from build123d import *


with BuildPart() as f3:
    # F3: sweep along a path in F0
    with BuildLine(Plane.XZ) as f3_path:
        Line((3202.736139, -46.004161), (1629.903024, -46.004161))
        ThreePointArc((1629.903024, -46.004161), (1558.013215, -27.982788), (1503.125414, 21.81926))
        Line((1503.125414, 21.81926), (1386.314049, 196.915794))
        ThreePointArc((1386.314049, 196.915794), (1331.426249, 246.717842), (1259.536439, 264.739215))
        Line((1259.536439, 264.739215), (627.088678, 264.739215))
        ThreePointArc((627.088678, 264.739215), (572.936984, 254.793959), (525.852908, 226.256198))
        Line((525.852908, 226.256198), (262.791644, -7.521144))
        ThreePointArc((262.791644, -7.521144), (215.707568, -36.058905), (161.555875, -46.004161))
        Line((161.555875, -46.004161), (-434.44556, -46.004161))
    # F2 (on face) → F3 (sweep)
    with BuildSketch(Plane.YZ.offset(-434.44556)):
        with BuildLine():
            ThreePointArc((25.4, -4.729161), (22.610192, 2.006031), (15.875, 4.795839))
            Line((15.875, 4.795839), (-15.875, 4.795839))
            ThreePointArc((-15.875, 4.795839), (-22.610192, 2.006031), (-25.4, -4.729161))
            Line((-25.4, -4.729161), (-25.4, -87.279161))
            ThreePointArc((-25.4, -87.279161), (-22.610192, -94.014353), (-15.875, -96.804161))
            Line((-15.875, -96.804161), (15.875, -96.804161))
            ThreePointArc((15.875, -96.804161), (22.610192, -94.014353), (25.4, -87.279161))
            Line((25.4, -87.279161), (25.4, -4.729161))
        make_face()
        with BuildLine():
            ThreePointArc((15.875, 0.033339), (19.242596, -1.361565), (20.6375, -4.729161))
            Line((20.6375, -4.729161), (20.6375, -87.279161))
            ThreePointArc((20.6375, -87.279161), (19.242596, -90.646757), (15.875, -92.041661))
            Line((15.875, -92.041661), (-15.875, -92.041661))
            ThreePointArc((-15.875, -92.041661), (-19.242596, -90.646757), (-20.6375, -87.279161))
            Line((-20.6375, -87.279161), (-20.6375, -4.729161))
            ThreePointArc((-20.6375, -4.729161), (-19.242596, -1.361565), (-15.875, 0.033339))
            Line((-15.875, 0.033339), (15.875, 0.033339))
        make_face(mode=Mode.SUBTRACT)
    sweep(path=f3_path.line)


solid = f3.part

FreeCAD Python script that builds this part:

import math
import FreeCAD as App
import Part
import Sketcher
Q = App.Units.Quantity

doc = App.newDocument("Part")
params = doc.addObject("Spreadsheet::Sheet", "Params")
for row, (alias, value) in enumerate([
    ("sketch1_radius", "0.375 in"),
    ("sketch1_radius2", "0.1875 in"),
    ("sketch1_height", "3.25 in"),
    ("sketch2_radius", "6 in"),
    ("sketch2_radius2", "5.9999999 in"),
], start=1):
    params.set(f"A{row}", alias)
    params.set(f"B{row}", "=" + value)
    params.setAlias(f"B{row}", alias)

body = doc.addObject("PartDesign::Body", "Body")

# Sketch on YZ plane
sketch1 = doc.addObject("Sketcher::SketchObject", "Sketch")
body.addObject(sketch1)
sketch1.AttachmentSupport = (doc.YZ_Plane, [""])
sketch1.MapMode = "FlatFace"
sketch1.AttachmentOffset = App.Placement(App.Vector(0, 0, -434.44556), App.Rotation())
sketch1.addGeometry([
    Part.ArcOfCircle(Part.Circle(App.Vector(15.9, -4.7, 0), App.Vector(0, 0, 1), 9.5), math.radians(0), math.radians(90)),  # 0
    Part.LineSegment(App.Vector(15.9, 4.8, 0), App.Vector(-15.9, 4.8, 0)),  # 1
    Part.ArcOfCircle(Part.Circle(App.Vector(-15.9, -4.7, 0), App.Vector(0, 0, 1), 9.5), math.radians(90), math.radians(180)),  # 2
    Part.LineSegment(App.Vector(-25.4, -4.7, 0), App.Vector(-25.4, -87.3, 0)),  # 3
    Part.ArcOfCircle(Part.Circle(App.Vector(-15.9, -87.3, 0), App.Vector(0, 0, 1), 9.5), math.radians(-180), math.radians(-90)),  # 4
    Part.LineSegment(App.Vector(-15.9, -96.8, 0), App.Vector(15.9, -96.8, 0)),  # 5
    Part.ArcOfCircle(Part.Circle(App.Vector(15.9, -87.3, 0), App.Vector(0, 0, 1), 9.5), math.radians(-90), math.radians(0)),  # 6
    Part.LineSegment(App.Vector(25.4, -87.3, 0), App.Vector(25.4, -4.7, 0)),  # 7
    Part.LineSegment(App.Vector(-15.9, 0, 0), App.Vector(15.9, 0, 0)),  # 8
    Part.ArcOfCircle(Part.Circle(App.Vector(15.9, -4.7, 0), App.Vector(0, 0, 1), 4.8), math.radians(0), math.radians(90)),  # 9
    Part.LineSegment(App.Vector(20.6, -4.7, 0), App.Vector(20.6, -87.3, 0)),  # 10
    Part.ArcOfCircle(Part.Circle(App.Vector(15.9, -87.3, 0), App.Vector(0, 0, 1), 4.8), math.radians(-90), math.radians(0)),  # 11
    Part.LineSegment(App.Vector(15.9, -92, 0), App.Vector(-15.9, -92, 0)),  # 12
    Part.ArcOfCircle(Part.Circle(App.Vector(-15.9, -87.3, 0), App.Vector(0, 0, 1), 4.8), math.radians(-180), math.radians(-90)),  # 13
    Part.LineSegment(App.Vector(-20.6, -87.3, 0), App.Vector(-20.6, -4.7, 0)),  # 14
    Part.ArcOfCircle(Part.Circle(App.Vector(-15.9, -4.7, 0), App.Vector(0, 0, 1), 4.8), math.radians(90), math.radians(180)),  # 15
], False)
sketch1.addConstraint([
    Sketcher.Constraint("Tangent", 0, 2, 1, 1),
    Sketcher.Constraint("Tangent", 1, 2, 2, 1),
    Sketcher.Constraint("Tangent", 2, 2, 3, 1),
    Sketcher.Constraint("Tangent", 3, 2, 4, 1),
    Sketcher.Constraint("Tangent", 4, 2, 5, 1),
    Sketcher.Constraint("Tangent", 5, 2, 6, 1),
    Sketcher.Constraint("Tangent", 6, 2, 7, 1),
    Sketcher.Constraint("Tangent", 7, 2, 0, 1),
    Sketcher.Constraint("Tangent", 8, 2, 9, 2),
    Sketcher.Constraint("Tangent", 9, 1, 10, 1),
    Sketcher.Constraint("Tangent", 10, 2, 11, 2),
    Sketcher.Constraint("Tangent", 11, 1, 12, 1),
    Sketcher.Constraint("Tangent", 12, 2, 13, 2),
    Sketcher.Constraint("Tangent", 13, 1, 14, 1),
    Sketcher.Constraint("Tangent", 14, 2, 15, 2),
    Sketcher.Constraint("Tangent", 15, 1, 8, 1),
    Sketcher.Constraint("Horizontal", 1),
    Sketcher.Constraint("Vertical", 3),
    Sketcher.Constraint("Horizontal", 5),
    Sketcher.Constraint("Vertical", 7),
    Sketcher.Constraint("Horizontal", 8),
    Sketcher.Constraint("Vertical", 10),
    Sketcher.Constraint("Horizontal", 12),
    Sketcher.Constraint("Vertical", 14),
    Sketcher.Constraint("Coincident", 9, 3, 0, 3),
    Sketcher.Constraint("Coincident", 11, 3, 6, 3),
    Sketcher.Constraint("Coincident", 13, 3, 4, 3),
    Sketcher.Constraint("Equal", 0, 2),
    Sketcher.Constraint("Equal", 2, 4),
    Sketcher.Constraint("Equal", 4, 6),
    Sketcher.Constraint("Equal", 13, 15),
    Sketcher.Constraint("DistanceX", 2, 2, -1, 1, Q("1 in")),
    Sketcher.Constraint("DistanceX", -1, 1, 6, 2, Q("1 in")),
    Sketcher.Constraint("Radius", 0, Q("0.375 in")),
    Sketcher.Constraint("Radius", 9, Q("0.1875 in")),
    Sketcher.Constraint("DistanceY", 3, 2, 3, 1, Q("3.25 in")),
    Sketcher.Constraint("DistanceY", 0, 3, -1, 1, Q("4.729161 mm")),
])
sketch1.setExpression("Constraints[33]", "Params.sketch1_radius")
sketch1.setExpression("Constraints[34]", "Params.sketch1_radius2")
sketch1.setExpression("Constraints[35]", "Params.sketch1_height")

# Sketch on XZ plane
sketch2 = doc.addObject("Sketcher::SketchObject", "Sketch001")
body.addObject(sketch2)
sketch2.AttachmentSupport = (doc.XZ_Plane, [""])
sketch2.MapMode = "FlatFace"
sketch2.addGeometry([
    Part.LineSegment(App.Vector(3203, -46, 0), App.Vector(1630, -46, 0)),  # 0
    Part.ArcOfCircle(Part.Circle(App.Vector(1630, 106, 0), App.Vector(0, 0, 1), 152), math.radians(-146), math.radians(-90)),  # 1
    Part.LineSegment(App.Vector(1503, 22, 0), App.Vector(1386, 197, 0)),  # 2
    Part.ArcOfCircle(Part.Circle(App.Vector(1260, 112, 0), App.Vector(0, 0, 1), 152), math.radians(34), math.radians(90)),  # 3
    Part.LineSegment(App.Vector(1260, 265, 0), App.Vector(627, 265, 0)),  # 4
    Part.ArcOfCircle(Part.Circle(App.Vector(627, 112, 0), App.Vector(0, 0, 1), 152), math.radians(90), math.radians(132)),  # 5
    Part.LineSegment(App.Vector(526, 226, 0), App.Vector(263, -8, 0)),  # 6
    Part.ArcOfCircle(Part.Circle(App.Vector(162, 106, 0), App.Vector(0, 0, 1), 152), math.radians(-90), math.radians(-48)),  # 7
    Part.LineSegment(App.Vector(162, -46, 0), App.Vector(-434, -46, 0)),  # 8
], False)
sketch2.addConstraint([
    Sketcher.Constraint("Tangent", 0, 2, 1, 2),
    Sketcher.Constraint("Tangent", 1, 1, 2, 1),
    Sketcher.Constraint("Tangent", 2, 2, 3, 1),
    Sketcher.Constraint("Tangent", 3, 2, 4, 1),
    Sketcher.Constraint("Tangent", 4, 2, 5, 1),
    Sketcher.Constraint("Tangent", 5, 2, 6, 1),
    Sketcher.Constraint("Tangent", 6, 2, 7, 2),
    Sketcher.Constraint("Tangent", 7, 1, 8, 1),
    Sketcher.Constraint("Horizontal", 0),
    Sketcher.Constraint("Horizontal", 4),
    Sketcher.Constraint("Horizontal", 8),
    Sketcher.Constraint("Equal", 1, 5),
    Sketcher.Constraint("Equal", 5, 7),
    Sketcher.Constraint("Horizontal", 1, 3, 7, 3),
    Sketcher.Constraint("Radius", 1, Q("6 in")),
    Sketcher.Constraint("Radius", 3, Q("5.9999999 in")),
    Sketcher.Constraint("DistanceX", 4, 2, 4, 1, Q("632.447761 mm")),
    Sketcher.Constraint("DistanceY", -1, 1, 5, 2, Q("226.256198 mm")),
    Sketcher.Constraint("DistanceX", 3, 3, 0, 1, Q("1943.199698 mm")),
    Sketcher.Constraint("Distance", 2, Q("210.48442 mm")),
    Sketcher.Constraint("DistanceX", 0, 2, 0, 1, Q("1572.833115 mm")),
    Sketcher.Constraint("DistanceX", 8, 2, 8, 1, Q("596.001435 mm")),
    Sketcher.Constraint("DistanceY", -1, 1, 1, 3, Q("106.39584 mm")),
    Sketcher.Constraint("DistanceX", -1, 1, 3, 3, Q("1259.536441 mm")),
])
sketch2.setExpression("Constraints[14]", "Params.sketch2_radius")
sketch2.setExpression("Constraints[15]", "Params.sketch2_radius2")
doc.recompute()

additivepipe = doc.addObject("PartDesign::AdditivePipe", "AdditivePipe")
body.addObject(additivepipe)
additivepipe.Profile = sketch1
additivepipe.Spine = (sketch2, ["Edge1", "Edge2", "Edge3", "Edge4", "Edge5", "Edge6", "Edge7", "Edge8", "Edge9"])

doc.recompute()
